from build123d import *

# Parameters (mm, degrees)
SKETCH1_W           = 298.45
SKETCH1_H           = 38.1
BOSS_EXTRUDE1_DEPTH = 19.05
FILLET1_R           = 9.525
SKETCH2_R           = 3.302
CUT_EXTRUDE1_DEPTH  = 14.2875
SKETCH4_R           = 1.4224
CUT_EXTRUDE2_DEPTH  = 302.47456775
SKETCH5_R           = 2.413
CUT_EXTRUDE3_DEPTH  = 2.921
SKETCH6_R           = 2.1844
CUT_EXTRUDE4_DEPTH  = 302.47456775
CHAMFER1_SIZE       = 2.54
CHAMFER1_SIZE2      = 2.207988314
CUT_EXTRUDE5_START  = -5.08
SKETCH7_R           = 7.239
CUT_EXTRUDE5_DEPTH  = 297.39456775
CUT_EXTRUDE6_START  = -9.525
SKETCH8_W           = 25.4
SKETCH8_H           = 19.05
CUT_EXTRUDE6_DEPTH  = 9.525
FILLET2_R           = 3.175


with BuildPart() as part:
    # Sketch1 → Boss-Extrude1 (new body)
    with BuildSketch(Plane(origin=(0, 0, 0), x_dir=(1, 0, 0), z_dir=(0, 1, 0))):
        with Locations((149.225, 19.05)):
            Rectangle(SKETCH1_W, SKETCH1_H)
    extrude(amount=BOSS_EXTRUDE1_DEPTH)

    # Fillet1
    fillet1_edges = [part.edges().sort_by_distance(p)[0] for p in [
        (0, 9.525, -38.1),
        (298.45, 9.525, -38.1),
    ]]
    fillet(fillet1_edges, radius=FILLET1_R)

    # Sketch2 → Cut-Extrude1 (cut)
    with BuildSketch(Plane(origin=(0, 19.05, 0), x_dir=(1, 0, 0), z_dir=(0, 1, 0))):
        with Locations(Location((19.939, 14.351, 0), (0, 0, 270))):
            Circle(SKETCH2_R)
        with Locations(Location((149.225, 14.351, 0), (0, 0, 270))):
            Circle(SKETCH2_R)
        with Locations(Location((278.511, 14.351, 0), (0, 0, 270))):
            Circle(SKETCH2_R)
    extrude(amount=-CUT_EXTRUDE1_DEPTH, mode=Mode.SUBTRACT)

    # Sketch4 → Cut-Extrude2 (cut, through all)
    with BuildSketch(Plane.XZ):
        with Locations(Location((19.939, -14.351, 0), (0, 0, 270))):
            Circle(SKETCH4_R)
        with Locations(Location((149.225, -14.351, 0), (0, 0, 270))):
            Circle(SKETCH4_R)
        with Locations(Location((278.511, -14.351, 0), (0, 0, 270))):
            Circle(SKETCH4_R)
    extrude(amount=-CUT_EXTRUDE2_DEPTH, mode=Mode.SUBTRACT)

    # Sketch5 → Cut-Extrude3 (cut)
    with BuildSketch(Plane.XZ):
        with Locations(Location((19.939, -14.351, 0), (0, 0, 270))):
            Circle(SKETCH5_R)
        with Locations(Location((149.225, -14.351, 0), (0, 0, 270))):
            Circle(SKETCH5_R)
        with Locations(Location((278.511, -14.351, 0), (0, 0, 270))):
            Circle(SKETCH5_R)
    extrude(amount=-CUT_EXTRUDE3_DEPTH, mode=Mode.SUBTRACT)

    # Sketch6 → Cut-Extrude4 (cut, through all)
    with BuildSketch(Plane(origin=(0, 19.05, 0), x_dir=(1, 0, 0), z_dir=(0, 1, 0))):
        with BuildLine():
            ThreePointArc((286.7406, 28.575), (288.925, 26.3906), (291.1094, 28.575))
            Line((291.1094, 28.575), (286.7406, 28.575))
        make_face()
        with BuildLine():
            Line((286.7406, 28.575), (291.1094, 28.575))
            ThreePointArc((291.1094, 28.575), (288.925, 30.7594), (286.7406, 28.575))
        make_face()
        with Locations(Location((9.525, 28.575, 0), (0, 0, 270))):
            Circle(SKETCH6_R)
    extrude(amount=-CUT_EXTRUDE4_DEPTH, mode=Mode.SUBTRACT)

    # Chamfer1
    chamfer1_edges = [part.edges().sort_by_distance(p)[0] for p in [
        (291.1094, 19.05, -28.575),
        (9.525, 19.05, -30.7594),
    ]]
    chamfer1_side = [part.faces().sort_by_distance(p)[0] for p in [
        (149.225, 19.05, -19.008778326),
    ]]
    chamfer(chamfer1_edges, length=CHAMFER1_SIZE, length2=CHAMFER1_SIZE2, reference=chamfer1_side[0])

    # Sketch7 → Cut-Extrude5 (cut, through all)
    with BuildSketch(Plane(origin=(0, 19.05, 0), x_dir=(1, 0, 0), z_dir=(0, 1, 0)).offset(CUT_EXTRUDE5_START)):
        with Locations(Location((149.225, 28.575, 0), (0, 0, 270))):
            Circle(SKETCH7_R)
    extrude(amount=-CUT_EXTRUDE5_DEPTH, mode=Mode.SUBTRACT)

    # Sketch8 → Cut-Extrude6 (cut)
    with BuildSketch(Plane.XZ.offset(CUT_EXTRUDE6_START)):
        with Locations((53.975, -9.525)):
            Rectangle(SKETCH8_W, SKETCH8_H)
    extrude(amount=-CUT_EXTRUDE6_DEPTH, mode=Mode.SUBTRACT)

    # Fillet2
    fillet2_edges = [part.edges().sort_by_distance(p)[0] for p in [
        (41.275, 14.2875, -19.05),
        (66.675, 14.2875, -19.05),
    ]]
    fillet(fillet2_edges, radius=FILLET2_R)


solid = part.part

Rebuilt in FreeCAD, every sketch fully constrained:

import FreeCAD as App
import Part
import Sketcher
from FreeCAD import Vector
Q = App.Units.Quantity


def edges_at(feature, points):
    """Names of the edges that pass closest to the given points."""
    edges = feature.Shape.Edges
    near = lambda p: min(range(len(edges)), key=lambda i: edges[i].distToShape(Part.Vertex(*p))[0])
    return sorted({f"Edge{near(p) + 1}" for p in points})

doc = App.newDocument("Part")
body = doc.addObject("PartDesign::Body", "Body")

# Sketch on XZ plane
sketch1 = body.newObject("Sketcher::SketchObject", "Sketch")
sketch1.AttachmentSupport = (doc.getObject("XZ_Plane"), [""])
sketch1.MapMode = "FlatFace"
sketch1.addGeometry([
    Part.LineSegment(Vector(0, -38, 0), Vector(0, 0, 0)),
    Part.LineSegment(Vector(0, 0, 0), Vector(298, 0, 0)),
    Part.LineSegment(Vector(298, 0, 0), Vector(298, -38, 0)),
    Part.LineSegment(Vector(298, -38, 0), Vector(0, -38, 0)),
], False)
sketch1.addConstraint([
    Sketcher.Constraint("Coincident", 0, 2, 1, 1),
    Sketcher.Constraint("Coincident", 1, 2, 2, 1),
    Sketcher.Constraint("Coincident", 2, 2, 3, 1),
    Sketcher.Constraint("Coincident", 3, 2, 0, 1),
    Sketcher.Constraint("Vertical", 0),
    Sketcher.Constraint("Horizontal", 1),
    Sketcher.Constraint("Vertical", 2),
    Sketcher.Constraint("Horizontal", 3),
    Sketcher.Constraint("Coincident", 0, 2, -1, 1),
    Sketcher.Constraint("DistanceY", 0, 1, 0, 2, Q("1.5 in")),
    Sketcher.Constraint("DistanceX", 1, 1, 1, 2, Q("11.75 in")),
])
pad1 = body.newObject("PartDesign::Pad", "Pad")
pad1.Profile = sketch1
pad1.Length = Q("0.75 in")
pad1.Reversed = True
doc.recompute()

fillet = body.newObject("PartDesign::Fillet", "Fillet")
fillet.Base = (pad1, edges_at(pad1, [(0, 9.525, -38.1), (298.45, 9.525, -38.1)]))
fillet.Radius = Q("0.375 in")

# Sketch on XZ plane
sketch2 = body.newObject("Sketcher::SketchObject", "Sketch001")
sketch2.AttachmentSupport = (doc.getObject("XZ_Plane"), [""])
sketch2.MapMode = "FlatFace"
sketch2.AttachmentOffset = App.Placement(Vector(0, 0, -0.75 * 25.4), App.Rotation())
sketch2.addGeometry([
    Part.Circle(Vector(19.9, -14.4, 0), Vector(0, 0, 1), 3.3),
    Part.Circle(Vector(149.2, -14.4, 0), Vector(0, 0, 1), 3.3),
    Part.Circle(Vector(278.5, -14.4, 0), Vector(0, 0, 1), 3.3),
], False)
sketch2.addConstraint([
    Sketcher.Constraint("Equal", 0, 1),
    Sketcher.Constraint("Equal", 1, 2),
    Sketcher.Constraint("Horizontal", 0, 3, 1, 3),
    Sketcher.Constraint("Horizontal", 1, 3, 2, 3),
    Sketcher.Constraint("Diameter", 0, Q("0.26 in")),
    Sketcher.Constraint("DistanceX", 0, 3, 1, 3, Q("5.09 in")),
    Sketcher.Constraint("DistanceX", 1, 3, 2, 3, Q("5.09 in")),
    Sketcher.Constraint("DistanceX", -1, 1, 0, 3, Q("0.785 in")),
    Sketcher.Constraint("DistanceY", 0, 3, -1, 1, Q("0.565 in")),
])
pocket1 = body.newObject("PartDesign::Pocket", "Pocket")
pocket1.Profile = sketch2
pocket1.Length = Q("0.5625 in")
pocket1.Reversed = True

# Sketch on XZ plane
sketch3 = body.newObject("Sketcher::SketchObject", "Sketch002")
sketch3.AttachmentSupport = (doc.getObject("XZ_Plane"), [""])
sketch3.MapMode = "FlatFace"
sketch3.addGeometry([
    Part.Circle(Vector(19.9, -14.4, 0), Vector(0, 0, 1), 1.4),
    Part.Circle(Vector(149.2, -14.4, 0), Vector(0, 0, 1), 1.4),
    Part.Circle(Vector(278.5, -14.4, 0), Vector(0, 0, 1), 1.4),
], False)
sketch3.addConstraint([
    Sketcher.Constraint("Equal", 0, 1),
    Sketcher.Constraint("Equal", 1, 2),
    Sketcher.Constraint("Horizontal", 0, 3, 1, 3),
    Sketcher.Constraint("Horizontal", 1, 3, 2, 3),
    Sketcher.Constraint("Diameter", 0, Q("0.112 in")),
    Sketcher.Constraint("DistanceX", 0, 3, 1, 3, Q("5.09 in")),
    Sketcher.Constraint("DistanceX", 1, 3, 2, 3, Q("5.09 in")),
    Sketcher.Constraint("DistanceX", -1, 1, 0, 3, Q("0.785 in")),
    Sketcher.Constraint("DistanceY", 0, 3, -1, 1, Q("0.565 in")),
])
pocket2 = body.newObject("PartDesign::Pocket", "Pocket001")
pocket2.Profile = sketch3
pocket2.Type = "ThroughAll"

# Sketch on XZ plane
sketch4 = body.newObject("Sketcher::SketchObject", "Sketch003")
sketch4.AttachmentSupport = (doc.getObject("XZ_Plane"), [""])
sketch4.MapMode = "FlatFace"
sketch4.addGeometry([
    Part.Circle(Vector(19.9, -14.4, 0), Vector(0, 0, 1), 2.4),
    Part.Circle(Vector(149.2, -14.4, 0), Vector(0, 0, 1), 2.4),
    Part.Circle(Vector(278.5, -14.4, 0), Vector(0, 0, 1), 2.4),
], False)
sketch4.addConstraint([
    Sketcher.Constraint("Equal", 0, 1),
    Sketcher.Constraint("Equal", 1, 2),
    Sketcher.Constraint("Horizontal", 0, 3, 1, 3),
    Sketcher.Constraint("Horizontal", 1, 3, 2, 3),
    Sketcher.Constraint("Diameter", 0, Q("0.19 in")),
    Sketcher.Constraint("DistanceX", 0, 3, 1, 3, Q("5.09 in")),
    Sketcher.Constraint("DistanceX", 1, 3, 2, 3, Q("5.09 in")),
    Sketcher.Constraint("DistanceX", -1, 1, 0, 3, Q("0.785 in")),
    Sketcher.Constraint("DistanceY", 0, 3, -1, 1, Q("0.565 in")),
])
pocket3 = body.newObject("PartDesign::Pocket", "Pocket002")
pocket3.Profile = sketch4
pocket3.Length = Q("0.115 in")

# Sketch on XZ plane
sketch5 = body.newObject("Sketcher::SketchObject", "Sketch004")
sketch5.AttachmentSupport = (doc.getObject("XZ_Plane"), [""])
sketch5.MapMode = "FlatFace"
sketch5.AttachmentOffset = App.Placement(Vector(0, 0, -0.75 * 25.4), App.Rotation())
sketch5.addGeometry([
    Part.Circle(Vector(288.9, -28.6, 0), Vector(0, 0, 1), 2.2),
    Part.Circle(Vector(9.5, -28.6, 0), Vector(0, 0, 1), 2.2),
], False)
sketch5.addConstraint([
    Sketcher.Constraint("Equal", 0, 1),
    Sketcher.Constraint("Horizontal", 0, 3, 1, 3),
    Sketcher.Constraint("Diameter", 0, Q("0.172 in")),
    Sketcher.Constraint("DistanceX", 1, 3, 0, 3, Q("11 in")),
    Sketcher.Constraint("DistanceX", -1, 1, 0, 3, Q("11.375 in")),
    Sketcher.Constraint("DistanceY", 0, 3, -1, 1, Q("1.125 in")),
])
pocket4 = body.newObject("PartDesign::Pocket", "Pocket003")
pocket4.Profile = sketch5
pocket4.Type = "ThroughAll"
pocket4.Reversed = True
doc.recompute()

chamfer = body.newObject("PartDesign::Chamfer", "Chamfer")
chamfer.Base = (pocket4, edges_at(pocket4, [(286.741, 19.05, -28.575), (9.525, 19.05, -30.759)]))
chamfer.ChamferType = "Two distances"
chamfer.Size = Q("0.1 in")
chamfer.Size2 = 2.207988

# Sketch on XZ plane
sketch6 = body.newObject("Sketcher::SketchObject", "Sketch005")
sketch6.AttachmentSupport = (doc.getObject("XZ_Plane"), [""])
sketch6.MapMode = "FlatFace"
sketch6.AttachmentOffset = App.Placement(Vector(0, 0, -0.55 * 25.4), App.Rotation())
sketch6.addGeometry(Part.Circle(Vector(149, -29, 0), Vector(0, 0, 1), 7), False)
sketch6.addConstraint([
    Sketcher.Constraint("Diameter", 0, Q("0.57 in")),
    Sketcher.Constraint("DistanceX", -1, 1, 0, 3, Q("5.875 in")),
    Sketcher.Constraint("DistanceY", 0, 3, -1, 1, Q("1.125 in")),
])
pocket5 = body.newObject("PartDesign::Pocket", "Pocket004")
pocket5.Profile = sketch6
pocket5.Type = "ThroughAll"
pocket5.Reversed = True

# Sketch on XZ plane
sketch7 = body.newObject("Sketcher::SketchObject", "Sketch006")
sketch7.AttachmentSupport = (doc.getObject("XZ_Plane"), [""])
sketch7.MapMode = "FlatFace"
sketch7.AttachmentOffset = App.Placement(Vector(0, 0, -0.375 * 25.4), App.Rotation())
sketch7.addGeometry([
    Part.LineSegment(Vector(41, 0, 0), Vector(41, -19, 0)),
    Part.LineSegment(Vector(41, -19, 0), Vector(67, -19, 0)),
    Part.LineSegment(Vector(67, -19, 0), Vector(67, 0, 0)),
    Part.LineSegment(Vector(67, 0, 0), Vector(41, 0, 0)),
], False)
sketch7.addConstraint([
    Sketcher.Constraint("Coincident", 0, 2, 1, 1),
    Sketcher.Constraint("Coincident", 1, 2, 2, 1),
    Sketcher.Constraint("Coincident", 2, 2, 3, 1),
    Sketcher.Constraint("Coincident", 3, 2, 0, 1),
    Sketcher.Constraint("Vertical", 0),
    Sketcher.Constraint("Horizontal", 1),
    Sketcher.Constraint("Vertical", 2),
    Sketcher.Constraint("Horizontal", 3),
    Sketcher.Constraint("PointOnObject", 2, 2, -1),
    Sketcher.Constraint("DistanceX", 1, 1, 1, 2, Q("1 in")),
    Sketcher.Constraint("DistanceY", 0, 2, 0, 1, Q("0.75 in")),
    Sketcher.Constraint("DistanceX", -1, 1, 0, 2, Q("1.625 in")),
])
pocket6 = body.newObject("PartDesign::Pocket", "Pocket005")
pocket6.Profile = sketch7
pocket6.Length = Q("0.375 in")
doc.recompute()

fillet2 = body.newObject("PartDesign::Fillet", "Fillet001")
fillet2.Base = (pocket6, edges_at(pocket6, [(41.275, 14.287, -19.05), (66.675, 14.287, -19.05)]))
fillet2.Radius = Q("0.125 in")

doc.recompute()
